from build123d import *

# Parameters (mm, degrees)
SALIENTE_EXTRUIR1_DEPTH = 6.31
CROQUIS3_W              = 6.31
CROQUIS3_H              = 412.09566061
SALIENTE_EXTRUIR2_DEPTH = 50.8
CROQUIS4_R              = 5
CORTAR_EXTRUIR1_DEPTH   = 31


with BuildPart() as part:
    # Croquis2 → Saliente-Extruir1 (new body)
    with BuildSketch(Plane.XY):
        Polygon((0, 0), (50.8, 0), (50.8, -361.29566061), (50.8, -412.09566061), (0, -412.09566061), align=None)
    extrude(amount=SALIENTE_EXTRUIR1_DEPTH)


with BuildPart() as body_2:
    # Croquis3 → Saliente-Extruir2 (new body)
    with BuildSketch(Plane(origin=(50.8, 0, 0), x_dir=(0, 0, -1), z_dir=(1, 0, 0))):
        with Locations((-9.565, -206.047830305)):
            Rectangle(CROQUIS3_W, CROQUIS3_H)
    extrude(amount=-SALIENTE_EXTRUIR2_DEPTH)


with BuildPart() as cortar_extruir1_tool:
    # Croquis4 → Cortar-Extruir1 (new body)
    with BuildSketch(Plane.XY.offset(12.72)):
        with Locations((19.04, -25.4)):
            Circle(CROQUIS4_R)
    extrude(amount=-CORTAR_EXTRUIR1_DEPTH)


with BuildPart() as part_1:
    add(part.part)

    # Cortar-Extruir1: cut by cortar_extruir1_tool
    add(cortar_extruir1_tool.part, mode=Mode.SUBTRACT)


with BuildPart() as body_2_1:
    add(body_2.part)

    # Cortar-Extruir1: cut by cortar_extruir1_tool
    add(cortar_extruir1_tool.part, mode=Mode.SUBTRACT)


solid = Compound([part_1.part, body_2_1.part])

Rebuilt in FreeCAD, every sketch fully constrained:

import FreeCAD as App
import Part
import Sketcher
from FreeCAD import Vector


def add_polygon(sketch, points):
    """Adds a closed chain of lines whose ends are joined by coincident constraints."""
    first, n = sketch.GeometryCount, len(points)
    for a, b in zip(points, points[1:] + points[:1]):
        sketch.addGeometry(Part.LineSegment(App.Vector(*a, 0), App.Vector(*b, 0)), False)
    for i in range(n):
        sketch.addConstraint(Sketcher.Constraint("Coincident", first + i, 2, first + (i + 1) % n, 1))

doc = App.newDocument("Part")
body = doc.addObject("PartDesign::Body", "Body")

# Sketch on XY plane
sketch1 = body.newObject("Sketcher::SketchObject", "Sketch")
sketch1.AttachmentSupport = (doc.getObject("XY_Plane"), [""])
sketch1.MapMode = "FlatFace"
add_polygon(sketch1, [(51, 0), (0, 0), (0, -412), (51, -412)])  # lines 0-3
sketch1.addConstraint(Sketcher.Constraint("Horizontal", 0))
sketch1.addConstraint(Sketcher.Constraint("Vertical", 1))
sketch1.addConstraint(Sketcher.Constraint("Horizontal", 2))
sketch1.addConstraint(Sketcher.Constraint("Vertical", 3))
sketch1.addConstraint(Sketcher.Constraint("Coincident", 0, 2, -1, 1))
sketch1.addConstraint(Sketcher.Constraint("DistanceX", 0, 2, 0, 1, 50.8))
sketch1.addConstraint(Sketcher.Constraint("DistanceY", 1, 2, 1, 1, 412.095661))
pad1 = body.newObject("PartDesign::Pad", "Pad")
pad1.Profile = sketch1
pad1.Length = 6.31
body2 = doc.addObject("PartDesign::Body", "Body001")

# Sketch on YZ plane
sketch2 = body2.newObject("Sketcher::SketchObject", "Sketch001")
sketch2.AttachmentSupport = (doc.getObject("YZ_Plane001"), [""])
sketch2.MapMode = "FlatFace"
sketch2.AttachmentOffset = App.Placement(Vector(0, 0, 50.8), App.Rotation())
add_polygon(sketch2, [(0, 13), (-412, 13), (-412, 6), (0, 6)])  # lines 0-3
sketch2.addConstraint(Sketcher.Constraint("Horizontal", 0))
sketch2.addConstraint(Sketcher.Constraint("Vertical", 1))
sketch2.addConstraint(Sketcher.Constraint("Horizontal", 2))
sketch2.addConstraint(Sketcher.Constraint("Vertical", 3))
sketch2.addConstraint(Sketcher.Constraint("PointOnObject", 2, 2, -2))
sketch2.addConstraint(Sketcher.Constraint("DistanceY", 1, 2, 1, 1, 6.31))
sketch2.addConstraint(Sketcher.Constraint("DistanceY", -1, 1, 0, 2, 12.72))
sketch2.addConstraint(Sketcher.Constraint("DistanceX", 0, 2, 0, 1, 412.095661))
pad2 = body2.newObject("PartDesign::Pad", "Pad001")
pad2.Profile = sketch2
pad2.Length = 50.8
pad2.Reversed = True
body3 = doc.addObject("PartDesign::Body", "Body002")

# Sketch on XY plane
sketch3 = body3.newObject("Sketcher::SketchObject", "Sketch002")
sketch3.AttachmentSupport = (doc.getObject("XY_Plane002"), [""])
sketch3.MapMode = "FlatFace"
sketch3.AttachmentOffset = App.Placement(Vector(0, 0, 12.72), App.Rotation())
sketch3.addGeometry(Part.Circle(Vector(19, -25, 0), Vector(0, 0, 1), 5), False)
sketch3.addConstraint(Sketcher.Constraint("Diameter", 0, 10.0))
sketch3.addConstraint(Sketcher.Constraint("DistanceY", 0, 3, -1, 1, 25.4))
sketch3.addConstraint(Sketcher.Constraint("DistanceX", -1, 1, 0, 3, 19.04))
pad3 = body3.newObject("PartDesign::Pad", "Pad002")
pad3.Profile = sketch3
pad3.Length = 31
pad3.Reversed = True
doc.recompute()

body4 = doc.addObject("PartDesign::Body", "Body003")
body4.BaseFeature = body3
boolean = body.newObject("PartDesign::Boolean", "Boolean")
boolean.Type = "Cut"
boolean.addObjects([body4])
doc.recompute()

boolean2 = body2.newObject("PartDesign::Boolean", "Boolean001")
boolean2.Type = "Cut"
boolean2.addObjects([body3])

doc.recompute()
